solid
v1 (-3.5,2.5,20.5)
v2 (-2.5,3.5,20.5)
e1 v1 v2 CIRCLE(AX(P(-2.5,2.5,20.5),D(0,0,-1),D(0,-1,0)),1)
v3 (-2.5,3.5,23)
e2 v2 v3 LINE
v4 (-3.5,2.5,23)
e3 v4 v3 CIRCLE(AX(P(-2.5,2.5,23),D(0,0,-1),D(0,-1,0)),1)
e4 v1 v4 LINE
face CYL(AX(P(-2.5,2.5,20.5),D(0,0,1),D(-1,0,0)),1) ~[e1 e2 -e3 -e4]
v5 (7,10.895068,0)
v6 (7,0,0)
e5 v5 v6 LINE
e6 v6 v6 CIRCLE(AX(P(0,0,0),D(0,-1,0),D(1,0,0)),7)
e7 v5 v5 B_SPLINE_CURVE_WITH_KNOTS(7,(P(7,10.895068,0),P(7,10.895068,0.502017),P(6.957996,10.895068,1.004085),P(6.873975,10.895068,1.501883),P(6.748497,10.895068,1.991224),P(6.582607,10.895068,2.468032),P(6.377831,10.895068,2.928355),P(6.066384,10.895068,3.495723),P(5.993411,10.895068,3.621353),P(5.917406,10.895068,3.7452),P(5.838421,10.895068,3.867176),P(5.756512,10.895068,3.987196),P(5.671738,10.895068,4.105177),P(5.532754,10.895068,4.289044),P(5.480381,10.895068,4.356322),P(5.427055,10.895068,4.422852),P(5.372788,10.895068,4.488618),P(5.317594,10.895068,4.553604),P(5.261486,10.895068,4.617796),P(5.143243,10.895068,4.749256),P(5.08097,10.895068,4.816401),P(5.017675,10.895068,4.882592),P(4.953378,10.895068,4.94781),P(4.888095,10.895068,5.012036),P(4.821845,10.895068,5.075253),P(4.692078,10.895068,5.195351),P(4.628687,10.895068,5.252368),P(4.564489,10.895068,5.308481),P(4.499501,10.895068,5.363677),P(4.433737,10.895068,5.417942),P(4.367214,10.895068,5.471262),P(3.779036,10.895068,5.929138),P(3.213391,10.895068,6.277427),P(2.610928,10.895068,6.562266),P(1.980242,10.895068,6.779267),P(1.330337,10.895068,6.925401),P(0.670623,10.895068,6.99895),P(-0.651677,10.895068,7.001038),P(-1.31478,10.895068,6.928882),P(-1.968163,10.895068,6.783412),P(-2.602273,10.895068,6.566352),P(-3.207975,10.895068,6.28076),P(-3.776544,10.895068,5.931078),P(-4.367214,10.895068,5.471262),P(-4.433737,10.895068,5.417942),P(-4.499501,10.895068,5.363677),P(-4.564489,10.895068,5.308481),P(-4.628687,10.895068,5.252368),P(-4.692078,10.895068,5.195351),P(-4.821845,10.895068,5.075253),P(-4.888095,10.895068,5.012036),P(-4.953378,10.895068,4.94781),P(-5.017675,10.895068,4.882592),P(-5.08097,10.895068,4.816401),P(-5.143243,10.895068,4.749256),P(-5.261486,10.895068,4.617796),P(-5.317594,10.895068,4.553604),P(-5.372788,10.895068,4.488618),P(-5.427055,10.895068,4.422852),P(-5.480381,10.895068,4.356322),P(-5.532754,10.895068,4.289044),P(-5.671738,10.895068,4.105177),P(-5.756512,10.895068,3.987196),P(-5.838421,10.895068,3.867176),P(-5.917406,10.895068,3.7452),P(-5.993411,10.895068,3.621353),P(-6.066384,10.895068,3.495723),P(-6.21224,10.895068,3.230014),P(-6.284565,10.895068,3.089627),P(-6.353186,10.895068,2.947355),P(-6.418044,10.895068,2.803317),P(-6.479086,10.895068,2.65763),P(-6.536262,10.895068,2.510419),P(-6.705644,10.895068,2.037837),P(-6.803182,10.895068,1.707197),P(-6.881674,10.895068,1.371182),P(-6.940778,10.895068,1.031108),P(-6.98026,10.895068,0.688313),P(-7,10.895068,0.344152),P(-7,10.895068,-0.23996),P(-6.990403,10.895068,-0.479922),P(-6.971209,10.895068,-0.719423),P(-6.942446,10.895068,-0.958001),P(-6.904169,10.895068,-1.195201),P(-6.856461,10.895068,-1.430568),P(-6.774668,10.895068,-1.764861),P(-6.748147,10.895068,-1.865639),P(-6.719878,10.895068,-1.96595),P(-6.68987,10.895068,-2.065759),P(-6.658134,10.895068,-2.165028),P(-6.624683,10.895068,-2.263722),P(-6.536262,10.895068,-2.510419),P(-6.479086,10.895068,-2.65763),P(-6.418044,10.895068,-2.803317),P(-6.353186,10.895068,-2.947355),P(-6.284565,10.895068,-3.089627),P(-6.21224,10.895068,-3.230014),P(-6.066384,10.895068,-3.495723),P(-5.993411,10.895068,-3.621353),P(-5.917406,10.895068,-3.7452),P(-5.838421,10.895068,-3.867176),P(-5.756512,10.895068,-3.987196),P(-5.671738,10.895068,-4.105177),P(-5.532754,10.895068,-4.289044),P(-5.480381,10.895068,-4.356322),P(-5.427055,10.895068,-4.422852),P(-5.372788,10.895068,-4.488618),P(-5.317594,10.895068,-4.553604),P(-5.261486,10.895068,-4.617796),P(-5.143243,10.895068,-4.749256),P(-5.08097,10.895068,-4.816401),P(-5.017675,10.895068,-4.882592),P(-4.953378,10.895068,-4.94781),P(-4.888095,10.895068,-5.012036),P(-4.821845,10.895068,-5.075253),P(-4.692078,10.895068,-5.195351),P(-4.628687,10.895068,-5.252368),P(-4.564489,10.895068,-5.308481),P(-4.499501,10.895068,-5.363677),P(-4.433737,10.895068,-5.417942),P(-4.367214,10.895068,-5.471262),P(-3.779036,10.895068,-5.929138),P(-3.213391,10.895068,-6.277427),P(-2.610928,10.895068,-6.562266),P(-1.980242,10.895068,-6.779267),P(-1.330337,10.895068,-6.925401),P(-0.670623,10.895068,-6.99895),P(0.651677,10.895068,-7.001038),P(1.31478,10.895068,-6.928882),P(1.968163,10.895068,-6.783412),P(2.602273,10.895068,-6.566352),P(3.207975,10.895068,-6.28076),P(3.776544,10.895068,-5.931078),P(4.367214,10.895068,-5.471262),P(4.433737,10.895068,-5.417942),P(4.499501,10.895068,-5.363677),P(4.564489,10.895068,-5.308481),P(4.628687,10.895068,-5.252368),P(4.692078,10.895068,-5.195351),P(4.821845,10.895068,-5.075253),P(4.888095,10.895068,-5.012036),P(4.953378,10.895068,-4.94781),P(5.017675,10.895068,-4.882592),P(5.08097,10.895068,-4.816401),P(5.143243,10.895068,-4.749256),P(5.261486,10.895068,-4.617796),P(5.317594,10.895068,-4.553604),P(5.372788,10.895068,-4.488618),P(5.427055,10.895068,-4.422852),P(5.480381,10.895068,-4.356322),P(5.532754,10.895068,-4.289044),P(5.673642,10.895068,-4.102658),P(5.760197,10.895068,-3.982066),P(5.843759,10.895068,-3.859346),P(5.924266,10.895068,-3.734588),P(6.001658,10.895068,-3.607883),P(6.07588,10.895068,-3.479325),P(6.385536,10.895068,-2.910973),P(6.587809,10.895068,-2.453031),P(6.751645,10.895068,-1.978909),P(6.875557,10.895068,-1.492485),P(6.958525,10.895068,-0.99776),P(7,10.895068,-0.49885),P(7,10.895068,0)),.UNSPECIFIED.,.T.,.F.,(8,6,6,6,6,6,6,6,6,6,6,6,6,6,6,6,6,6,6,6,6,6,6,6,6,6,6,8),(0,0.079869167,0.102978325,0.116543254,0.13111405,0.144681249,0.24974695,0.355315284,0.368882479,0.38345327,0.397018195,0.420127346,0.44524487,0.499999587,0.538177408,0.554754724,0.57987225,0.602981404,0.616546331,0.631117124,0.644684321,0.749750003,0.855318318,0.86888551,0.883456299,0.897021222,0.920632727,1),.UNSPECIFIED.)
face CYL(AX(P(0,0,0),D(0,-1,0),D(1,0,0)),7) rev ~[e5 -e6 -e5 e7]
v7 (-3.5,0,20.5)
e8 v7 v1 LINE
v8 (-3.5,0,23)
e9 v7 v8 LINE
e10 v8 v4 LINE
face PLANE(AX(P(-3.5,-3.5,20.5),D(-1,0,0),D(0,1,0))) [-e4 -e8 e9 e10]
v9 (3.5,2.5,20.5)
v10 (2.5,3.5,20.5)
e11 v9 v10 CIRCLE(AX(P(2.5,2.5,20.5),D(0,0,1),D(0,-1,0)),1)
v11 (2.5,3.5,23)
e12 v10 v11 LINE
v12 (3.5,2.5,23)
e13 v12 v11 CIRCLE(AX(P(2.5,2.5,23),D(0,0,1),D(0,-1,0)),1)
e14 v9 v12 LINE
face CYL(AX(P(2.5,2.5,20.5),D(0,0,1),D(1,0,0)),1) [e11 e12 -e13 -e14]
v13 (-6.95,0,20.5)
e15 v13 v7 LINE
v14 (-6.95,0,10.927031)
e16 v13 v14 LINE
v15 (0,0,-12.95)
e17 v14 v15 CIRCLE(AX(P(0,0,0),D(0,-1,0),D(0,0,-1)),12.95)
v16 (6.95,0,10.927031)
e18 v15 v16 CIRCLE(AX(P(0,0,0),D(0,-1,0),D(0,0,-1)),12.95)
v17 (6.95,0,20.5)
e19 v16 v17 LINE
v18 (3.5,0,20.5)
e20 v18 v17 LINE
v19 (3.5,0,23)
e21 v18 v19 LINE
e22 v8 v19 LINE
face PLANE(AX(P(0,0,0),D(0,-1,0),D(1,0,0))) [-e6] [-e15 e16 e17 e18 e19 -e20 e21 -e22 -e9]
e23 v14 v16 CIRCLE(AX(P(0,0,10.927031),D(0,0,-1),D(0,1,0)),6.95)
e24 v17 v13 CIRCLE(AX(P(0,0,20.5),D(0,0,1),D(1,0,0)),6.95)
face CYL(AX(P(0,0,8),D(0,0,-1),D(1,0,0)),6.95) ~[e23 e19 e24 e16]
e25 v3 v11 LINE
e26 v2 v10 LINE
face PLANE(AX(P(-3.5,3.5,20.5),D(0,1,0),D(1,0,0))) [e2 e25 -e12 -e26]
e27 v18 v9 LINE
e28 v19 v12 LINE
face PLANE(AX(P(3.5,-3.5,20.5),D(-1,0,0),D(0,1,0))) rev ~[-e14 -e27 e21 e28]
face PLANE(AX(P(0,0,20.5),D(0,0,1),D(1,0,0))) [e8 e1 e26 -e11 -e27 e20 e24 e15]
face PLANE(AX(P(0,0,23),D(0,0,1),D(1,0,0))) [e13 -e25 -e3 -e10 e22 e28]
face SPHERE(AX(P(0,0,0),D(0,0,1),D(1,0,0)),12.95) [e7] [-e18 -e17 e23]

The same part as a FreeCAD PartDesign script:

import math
import FreeCAD as App
import Part
import Sketcher
from FreeCAD import Vector
Q = App.Units.Quantity


def edges_at(feature, points):
    """Names of the edges that pass closest to the given points."""
    edges = feature.Shape.Edges
    near = lambda p: min(range(len(edges)), key=lambda i: edges[i].distToShape(Part.Vertex(*p))[0])
    return sorted({f"Edge{near(p) + 1}" for p in points})


def add_polygon(sketch, points):
    """Adds a closed chain of lines whose ends are joined by coincident constraints."""
    first, n = sketch.GeometryCount, len(points)
    for a, b in zip(points, points[1:] + points[:1]):
        sketch.addGeometry(Part.LineSegment(App.Vector(*a, 0), App.Vector(*b, 0)), False)
    for i in range(n):
        sketch.addConstraint(Sketcher.Constraint("Coincident", first + i, 2, first + (i + 1) % n, 1))

doc = App.newDocument("Part")
params = doc.addObject("Spreadsheet::Sheet", "Params")
for row, (alias, value) in enumerate([
    ("sketch1_width", "30 mm"),
    ("sketch1_height", "50 mm"),
    ("pad1_length", "20 mm"),
    ("sketch2_diameter", "13.9 mm"),
    ("pad2_length", "12.5 mm"),
    ("sketch3_diameter", "14 mm"),
    ("pad3_length", "30 mm"),
    ("sketch4_radius", "12.95 mm"),
    ("revolution_angle", "360 deg"),
    ("sketch5_width", "7 mm"),
    ("pad4_length", "2.5 mm"),
    ("fillet_radius", "1 mm"),
], start=1):
    params.set(f"A{row}", alias)
    params.set(f"B{row}", "=" + value)
    params.setAlias(f"B{row}", alias)

body = doc.addObject("PartDesign::Body", "Body")

# Sketch on XZ plane
sketch1 = body.newObject("Sketcher::SketchObject", "Sketch")
sketch1.AttachmentSupport = (doc.getObject("XZ_Plane"), [""])
sketch1.MapMode = "FlatFace"
add_polygon(sketch1, [(-15, 25), (-15, -25), (15, -25), (15, 25)])  # lines 0-3
sketch1.addConstraint([
    Sketcher.Constraint("Vertical", 0),
    Sketcher.Constraint("Horizontal", 1),
    Sketcher.Constraint("Vertical", 2),
    Sketcher.Constraint("Horizontal", 3),
    Sketcher.Constraint("Symmetric", 0, 2, 2, 2, -1, 1),
    Sketcher.Constraint("DistanceX", 1, 1, 1, 2, Q("30 mm")),
    Sketcher.Constraint("DistanceY", 0, 2, 0, 1, Q("50 mm")),
])
sketch1.setExpression("Constraints[9]", "Params.sketch1_width")
sketch1.setExpression("Constraints[10]", "Params.sketch1_height")
pad1 = body.newObject("PartDesign::Pad", "Pad")
pad1.Profile = sketch1
pad1.setExpression("Length", "Params.pad1_length")
body2 = doc.addObject("PartDesign::Body", "Body001")

# Sketch on XY plane
sketch2 = body2.newObject("Sketcher::SketchObject", "Sketch001")
sketch2.AttachmentSupport = (doc.getObject("XY_Plane001"), [""])
sketch2.MapMode = "FlatFace"
sketch2.AttachmentOffset = App.Placement(Vector(0, 0, 8), App.Rotation())
sketch2.addGeometry(Part.Circle(Vector(0, 0, 0), Vector(0, 0, 1), 7), False)
sketch2.addConstraint([
    Sketcher.Constraint("Coincident", 0, 3, -1, 1),
    Sketcher.Constraint("Diameter", 0, Q("13.9 mm")),
])
sketch2.setExpression("Constraints[1]", "Params.sketch2_diameter")
pad2 = body2.newObject("PartDesign::Pad", "Pad001")
pad2.Profile = sketch2
pad2.setExpression("Length", "Params.pad2_length")
body3 = doc.addObject("PartDesign::Body", "Body002")

# Sketch on XZ plane
sketch3 = body3.newObject("Sketcher::SketchObject", "Sketch002")
sketch3.AttachmentSupport = (doc.getObject("XZ_Plane002"), [""])
sketch3.MapMode = "FlatFace"
sketch3.addGeometry(Part.Circle(Vector(0, 0, 0), Vector(0, 0, 1), 7), False)
sketch3.addConstraint([
    Sketcher.Constraint("Coincident", 0, 3, -1, 1),
    Sketcher.Constraint("Diameter", 0, Q("14 mm")),
])
sketch3.setExpression("Constraints[1]", "Params.sketch3_diameter")
pad3 = body3.newObject("PartDesign::Pad", "Pad002")
pad3.Profile = sketch3
pad3.setExpression("Length", "Params.pad3_length")
pad3.Midplane = True
body4 = doc.addObject("PartDesign::Body", "Body003")

# Sketch on XZ plane
sketch4 = body4.newObject("Sketcher::SketchObject", "Sketch003")
sketch4.AttachmentSupport = (doc.getObject("XZ_Plane003"), [""])
sketch4.MapMode = "FlatFace"
sketch4.addGeometry([
    Part.ArcOfCircle(Part.Circle(Vector(0, 0, 0), Vector(0, 0, 1), 13), math.radians(-90), math.radians(90)),
    Part.LineSegment(Vector(0, 13, 0), Vector(0, -13, 0)),
], False)
sketch4.addConstraint([
    Sketcher.Constraint("Coincident", 0, 1, 1, 2),
    Sketcher.Constraint("Coincident", 1, 1, 0, 2),
    Sketcher.Constraint("Vertical", 1),
    Sketcher.Constraint("Coincident", 0, 3, -1, 1),
    Sketcher.Constraint("PointOnObject", 0, 1, -2),
    Sketcher.Constraint("Radius", 0, Q("12.95 mm")),
])
sketch4.setExpression("Constraints[5]", "Params.sketch4_radius")
revolution = body4.newObject("PartDesign::Revolution", "Revolution")
revolution.Profile = sketch4
revolution.ReferenceAxis = (sketch4, ["V_Axis"])
revolution.setExpression("Angle", "Params.revolution_angle")
doc.recompute()

boolean = body4.newObject("PartDesign::Boolean", "Boolean")
boolean.Type = "Cut"
boolean.addObjects([body3])
body5 = doc.addObject("PartDesign::Body", "Body004")

# Sketch on XY plane
sketch5 = body5.newObject("Sketcher::SketchObject", "Sketch004")
sketch5.AttachmentSupport = (doc.getObject("XY_Plane004"), [""])
sketch5.MapMode = "FlatFace"
sketch5.AttachmentOffset = App.Placement(Vector(0, 0, 20.5), App.Rotation())
add_polygon(sketch5, [(-4, 4), (-4, -4), (4, -4), (4, 4)])  # lines 0-3
sketch5.addConstraint([
    Sketcher.Constraint("Vertical", 0),
    Sketcher.Constraint("Horizontal", 1),
    Sketcher.Constraint("Vertical", 2),
    Sketcher.Constraint("Horizontal", 3),
    Sketcher.Constraint("Symmetric", 0, 2, 2, 2, -1, 1),
    Sketcher.Constraint("Equal", 3, 0),
    Sketcher.Constraint("DistanceX", 1, 1, 1, 2, Q("7 mm")),
])
sketch5.setExpression("Constraints[10]", "Params.sketch5_width")
pad4 = body5.newObject("PartDesign::Pad", "Pad003")
pad4.Profile = sketch5
pad4.setExpression("Length", "Params.pad4_length")
doc.recompute()

fillet = body5.newObject("PartDesign::Fillet", "Fillet")
fillet.Base = (pad4, edges_at(pad4, [
    (-3.5, -3.5, 21.75),
    (3.5, -3.5, 21.75),
    (3.5, 3.5, 21.75),
    (-3.5, 3.5, 21.75),
]))
fillet.setExpression("Radius", "Params.fillet_radius")
doc.recompute()

boolean2 = body5.newObject("PartDesign::Boolean", "Boolean001")
boolean2.Type = "Fuse"
boolean2.addObjects([body2])
doc.recompute()

boolean3 = body5.newObject("PartDesign::Boolean", "Boolean002")
boolean3.Type = "Fuse"
boolean3.addObjects([body4])
doc.recompute()

boolean4 = body5.newObject("PartDesign::Boolean", "Boolean003")
boolean4.Type = "Cut"
boolean4.addObjects([body])

doc.recompute()
